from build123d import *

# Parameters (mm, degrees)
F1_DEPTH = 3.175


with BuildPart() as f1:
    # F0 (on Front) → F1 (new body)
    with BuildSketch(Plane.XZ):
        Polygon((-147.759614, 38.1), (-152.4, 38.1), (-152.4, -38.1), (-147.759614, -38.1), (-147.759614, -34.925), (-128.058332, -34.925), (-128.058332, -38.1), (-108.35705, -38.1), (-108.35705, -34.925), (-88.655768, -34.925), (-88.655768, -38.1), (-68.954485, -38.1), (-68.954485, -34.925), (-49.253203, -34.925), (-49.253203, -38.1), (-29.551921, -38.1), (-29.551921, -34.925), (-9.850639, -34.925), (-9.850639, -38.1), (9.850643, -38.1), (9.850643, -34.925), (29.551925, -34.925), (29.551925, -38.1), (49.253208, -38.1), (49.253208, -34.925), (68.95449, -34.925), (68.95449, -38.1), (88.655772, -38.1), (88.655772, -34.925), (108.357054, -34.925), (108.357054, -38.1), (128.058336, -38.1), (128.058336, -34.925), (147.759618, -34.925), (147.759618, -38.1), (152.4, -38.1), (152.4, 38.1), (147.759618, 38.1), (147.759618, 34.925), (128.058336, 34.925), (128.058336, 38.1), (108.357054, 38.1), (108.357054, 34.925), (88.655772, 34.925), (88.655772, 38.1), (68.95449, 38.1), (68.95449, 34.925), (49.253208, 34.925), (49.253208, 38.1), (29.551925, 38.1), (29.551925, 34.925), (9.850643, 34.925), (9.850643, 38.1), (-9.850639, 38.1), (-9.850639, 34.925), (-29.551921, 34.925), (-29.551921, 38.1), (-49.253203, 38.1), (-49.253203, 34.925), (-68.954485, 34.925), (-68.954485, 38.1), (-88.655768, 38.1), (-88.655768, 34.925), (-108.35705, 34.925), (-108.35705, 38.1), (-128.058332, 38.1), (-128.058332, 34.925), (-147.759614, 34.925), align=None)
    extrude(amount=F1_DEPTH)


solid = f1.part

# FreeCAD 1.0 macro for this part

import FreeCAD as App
import Part
import Sketcher

V = App.Vector
Q = App.Units.Quantity

doc = App.newDocument("Part")
params = doc.addObject("Spreadsheet::Sheet", "Params")
for row, (alias, value) in enumerate([
    ("sketch1_height", "3 in"),
    ("sketch1_height2", "0.125 in"),
    ("pad1_length", "0.125 in"),
], start=1):
    params.set(f"A{row}", alias)
    params.set(f"B{row}", "=" + value)
    params.setAlias(f"B{row}", alias)

body = doc.addObject("PartDesign::Body", "Body")

# Sketch on XZ plane
sketch1 = doc.addObject("Sketcher::SketchObject", "Sketch")
body.addObject(sketch1)
sketch1.AttachmentSupport = (doc.XZ_Plane, [""])
sketch1.MapMode = "FlatFace"
sketch1.addGeometry(Part.LineSegment(V(-147.8, 38.1, 0), V(-152.4, 38.1, 0)), False)
sketch1.addGeometry(Part.LineSegment(V(-152.4, 38.1, 0), V(-152.4, -38.1, 0)), False)
sketch1.addGeometry(Part.LineSegment(V(-152.4, -38.1, 0), V(-147.8, -38.1, 0)), False)
sketch1.addGeometry(Part.LineSegment(V(-147.8, -38.1, 0), V(-147.8, -34.9, 0)), False)
sketch1.addGeometry(Part.LineSegment(V(-147.8, -34.9, 0), V(-128.1, -34.9, 0)), False)
sketch1.addGeometry(Part.LineSegment(V(-128.1, -34.9, 0), V(-128.1, -38.1, 0)), False)
sketch1.addGeometry(Part.LineSegment(V(-128.1, -38.1, 0), V(-108.4, -38.1, 0)), False)
sketch1.addGeometry(Part.LineSegment(V(-108.4, -38.1, 0), V(-108.4, -34.9, 0)), False)
sketch1.addGeometry(Part.LineSegment(V(-108.4, -34.9, 0), V(-88.7, -34.9, 0)), False)
sketch1.addGeometry(Part.LineSegment(V(-88.7, -34.9, 0), V(-88.7, -38.1, 0)), False)
sketch1.addGeometry(Part.LineSegment(V(-88.7, -38.1, 0), V(-69, -38.1, 0)), False)
sketch1.addGeometry(Part.LineSegment(V(-69, -38.1, 0), V(-69, -34.9, 0)), False)
sketch1.addGeometry(Part.LineSegment(V(-69, -34.9, 0), V(-49.3, -34.9, 0)), False)
sketch1.addGeometry(Part.LineSegment(V(-49.3, -34.9, 0), V(-49.3, -38.1, 0)), False)
sketch1.addGeometry(Part.LineSegment(V(-49.3, -38.1, 0), V(-29.6, -38.1, 0)), False)
sketch1.addGeometry(Part.LineSegment(V(-29.6, -38.1, 0), V(-29.6, -34.9, 0)), False)
sketch1.addGeometry(Part.LineSegment(V(-29.6, -34.9, 0), V(-9.9, -34.9, 0)), False)
sketch1.addGeometry(Part.LineSegment(V(-9.9, -34.9, 0), V(-9.9, -38.1, 0)), False)
sketch1.addGeometry(Part.LineSegment(V(-9.9, -38.1, 0), V(9.9, -38.1, 0)), False)
sketch1.addGeometry(Part.LineSegment(V(9.9, -38.1, 0), V(9.9, -34.9, 0)), False)
sketch1.addGeometry(Part.LineSegment(V(9.9, -34.9, 0), V(29.6, -34.9, 0)), False)
sketch1.addGeometry(Part.LineSegment(V(29.6, -34.9, 0), V(29.6, -38.1, 0)), False)
sketch1.addGeometry(Part.LineSegment(V(29.6, -38.1, 0), V(49.3, -38.1, 0)), False)
sketch1.addGeometry(Part.LineSegment(V(49.3, -38.1, 0), V(49.3, -34.9, 0)), False)
sketch1.addGeometry(Part.LineSegment(V(49.3, -34.9, 0), V(69, -34.9, 0)), False)
sketch1.addGeometry(Part.LineSegment(V(69, -34.9, 0), V(69, -38.1, 0)), False)
sketch1.addGeometry(Part.LineSegment(V(69, -38.1, 0), V(88.7, -38.1, 0)), False)
sketch1.addGeometry(Part.LineSegment(V(88.7, -38.1, 0), V(88.7, -34.9, 0)), False)
sketch1.addGeometry(Part.LineSegment(V(88.7, -34.9, 0), V(108.4, -34.9, 0)), False)
sketch1.addGeometry(Part.LineSegment(V(108.4, -34.9, 0), V(108.4, -38.1, 0)), False)
sketch1.addGeometry(Part.LineSegment(V(108.4, -38.1, 0), V(128.1, -38.1, 0)), False)
sketch1.addGeometry(Part.LineSegment(V(128.1, -38.1, 0), V(128.1, -34.9, 0)), False)
sketch1.addGeometry(Part.LineSegment(V(128.1, -34.9, 0), V(147.8, -34.9, 0)), False)
sketch1.addGeometry(Part.LineSegment(V(147.8, -34.9, 0), V(147.8, -38.1, 0)), False)
sketch1.addGeometry(Part.LineSegment(V(147.8, -38.1, 0), V(152.4, -38.1, 0)), False)
sketch1.addGeometry(Part.LineSegment(V(152.4, -38.1, 0), V(152.4, 38.1, 0)), False)
sketch1.addGeometry(Part.LineSegment(V(152.4, 38.1, 0), V(147.8, 38.1, 0)), False)
sketch1.addGeometry(Part.LineSegment(V(147.8, 38.1, 0), V(147.8, 34.9, 0)), False)
sketch1.addGeometry(Part.LineSegment(V(147.8, 34.9, 0), V(128.1, 34.9, 0)), False)
sketch1.addGeometry(Part.LineSegment(V(128.1, 34.9, 0), V(128.1, 38.1, 0)), False)
sketch1.addGeometry(Part.LineSegment(V(128.1, 38.1, 0), V(108.4, 38.1, 0)), False)
sketch1.addGeometry(Part.LineSegment(V(108.4, 38.1, 0), V(108.4, 34.9, 0)), False)
sketch1.addGeometry(Part.LineSegment(V(108.4, 34.9, 0), V(88.7, 34.9, 0)), False)
sketch1.addGeometry(Part.LineSegment(V(88.7, 34.9, 0), V(88.7, 38.1, 0)), False)
sketch1.addGeometry(Part.LineSegment(V(88.7, 38.1, 0), V(69, 38.1, 0)), False)
sketch1.addGeometry(Part.LineSegment(V(69, 38.1, 0), V(69, 34.9, 0)), False)
sketch1.addGeometry(Part.LineSegment(V(69, 34.9, 0), V(49.3, 34.9, 0)), False)
sketch1.addGeometry(Part.LineSegment(V(49.3, 34.9, 0), V(49.3, 38.1, 0)), False)
sketch1.addGeometry(Part.LineSegment(V(49.3, 38.1, 0), V(29.6, 38.1, 0)), False)
sketch1.addGeometry(Part.LineSegment(V(29.6, 38.1, 0), V(29.6, 34.9, 0)), False)
sketch1.addGeometry(Part.LineSegment(V(29.6, 34.9, 0), V(9.9, 34.9, 0)), False)
sketch1.addGeometry(Part.LineSegment(V(9.9, 34.9, 0), V(9.9, 38.1, 0)), False)
sketch1.addGeometry(Part.LineSegment(V(9.9, 38.1, 0), V(-9.9, 38.1, 0)), False)
sketch1.addGeometry(Part.LineSegment(V(-9.9, 38.1, 0), V(-9.9, 34.9, 0)), False)
sketch1.addGeometry(Part.LineSegment(V(-9.9, 34.9, 0), V(-29.6, 34.9, 0)), False)
sketch1.addGeometry(Part.LineSegment(V(-29.6, 34.9, 0), V(-29.6, 38.1, 0)), False)
sketch1.addGeometry(Part.LineSegment(V(-29.6, 38.1, 0), V(-49.3, 38.1, 0)), False)
sketch1.addGeometry(Part.LineSegment(V(-49.3, 38.1, 0), V(-49.3, 34.9, 0)), False)
sketch1.addGeometry(Part.LineSegment(V(-49.3, 34.9, 0), V(-69, 34.9, 0)), False)
sketch1.addGeometry(Part.LineSegment(V(-69, 34.9, 0), V(-69, 38.1, 0)), False)
sketch1.addGeometry(Part.LineSegment(V(-69, 38.1, 0), V(-88.7, 38.1, 0)), False)
sketch1.addGeometry(Part.LineSegment(V(-88.7, 38.1, 0), V(-88.7, 34.9, 0)), False)
sketch1.addGeometry(Part.LineSegment(V(-88.7, 34.9, 0), V(-108.4, 34.9, 0)), False)
sketch1.addGeometry(Part.LineSegment(V(-108.4, 34.9, 0), V(-108.4, 38.1, 0)), False)
sketch1.addGeometry(Part.LineSegment(V(-108.4, 38.1, 0), V(-128.1, 38.1, 0)), False)
sketch1.addGeometry(Part.LineSegment(V(-128.1, 38.1, 0), V(-128.1, 34.9, 0)), False)
sketch1.addGeometry(Part.LineSegment(V(-128.1, 34.9, 0), V(-147.8, 34.9, 0)), False)
sketch1.addGeometry(Part.LineSegment(V(-147.8, 34.9, 0), V(-147.8, 38.1, 0)), False)
sketch1.addConstraint(Sketcher.Constraint("Coincident", 0, 2, 1, 1))
sketch1.addConstraint(Sketcher.Constraint("Coincident", 1, 2, 2, 1))
sketch1.addConstraint(Sketcher.Constraint("Coincident", 2, 2, 3, 1))
sketch1.addConstraint(Sketcher.Constraint("Coincident", 3, 2, 4, 1))
sketch1.addConstraint(Sketcher.Constraint("Coincident", 4, 2, 5, 1))
sketch1.addConstraint(Sketcher.Constraint("Coincident", 5, 2, 6, 1))
sketch1.addConstraint(Sketcher.Constraint("Coincident", 6, 2, 7, 1))
sketch1.addConstraint(Sketcher.Constraint("Coincident", 7, 2, 8, 1))
sketch1.addConstraint(Sketcher.Constraint("Coincident", 8, 2, 9, 1))
sketch1.addConstraint(Sketcher.Constraint("Coincident", 9, 2, 10, 1))
sketch1.addConstraint(Sketcher.Constraint("Coincident", 10, 2, 11, 1))
sketch1.addConstraint(Sketcher.Constraint("Coincident", 11, 2, 12, 1))
sketch1.addConstraint(Sketcher.Constraint("Coincident", 12, 2, 13, 1))
sketch1.addConstraint(Sketcher.Constraint("Coincident", 13, 2, 14, 1))
sketch1.addConstraint(Sketcher.Constraint("Coincident", 14, 2, 15, 1))
sketch1.addConstraint(Sketcher.Constraint("Coincident", 15, 2, 16, 1))
sketch1.addConstraint(Sketcher.Constraint("Coincident", 16, 2, 17, 1))
sketch1.addConstraint(Sketcher.Constraint("Coincident", 17, 2, 18, 1))
sketch1.addConstraint(Sketcher.Constraint("Coincident", 18, 2, 19, 1))
sketch1.addConstraint(Sketcher.Constraint("Coincident", 19, 2, 20, 1))
sketch1.addConstraint(Sketcher.Constraint("Coincident", 20, 2, 21, 1))
sketch1.addConstraint(Sketcher.Constraint("Coincident", 21, 2, 22, 1))
sketch1.addConstraint(Sketcher.Constraint("Coincident", 22, 2, 23, 1))
sketch1.addConstraint(Sketcher.Constraint("Coincident", 23, 2, 24, 1))
sketch1.addConstraint(Sketcher.Constraint("Coincident", 24, 2, 25, 1))
sketch1.addConstraint(Sketcher.Constraint("Coincident", 25, 2, 26, 1))
sketch1.addConstraint(Sketcher.Constraint("Coincident", 26, 2, 27, 1))
sketch1.addConstraint(Sketcher.Constraint("Coincident", 27, 2, 28, 1))
sketch1.addConstraint(Sketcher.Constraint("Coincident", 28, 2, 29, 1))
sketch1.addConstraint(Sketcher.Constraint("Coincident", 29, 2, 30, 1))
sketch1.addConstraint(Sketcher.Constraint("Coincident", 30, 2, 31, 1))
sketch1.addConstraint(Sketcher.Constraint("Coincident", 31, 2, 32, 1))
sketch1.addConstraint(Sketcher.Constraint("Coincident", 32, 2, 33, 1))
sketch1.addConstraint(Sketcher.Constraint("Coincident", 33, 2, 34, 1))
sketch1.addConstraint(Sketcher.Constraint("Coincident", 34, 2, 35, 1))
sketch1.addConstraint(Sketcher.Constraint("Coincident", 35, 2, 36, 1))
sketch1.addConstraint(Sketcher.Constraint("Coincident", 36, 2, 37, 1))
sketch1.addConstraint(Sketcher.Constraint("Coincident", 37, 2, 38, 1))
sketch1.addConstraint(Sketcher.Constraint("Coincident", 38, 2, 39, 1))
sketch1.addConstraint(Sketcher.Constraint("Coincident", 39, 2, 40, 1))
sketch1.addConstraint(Sketcher.Constraint("Coincident", 40, 2, 41, 1))
sketch1.addConstraint(Sketcher.Constraint("Coincident", 41, 2, 42, 1))
sketch1.addConstraint(Sketcher.Constraint("Coincident", 42, 2, 43, 1))
sketch1.addConstraint(Sketcher.Constraint("Coincident", 43, 2, 44, 1))
sketch1.addConstraint(Sketcher.Constraint("Coincident", 44, 2, 45, 1))
sketch1.addConstraint(Sketcher.Constraint("Coincident", 45, 2, 46, 1))
sketch1.addConstraint(Sketcher.Constraint("Coincident", 46, 2, 47, 1))
sketch1.addConstraint(Sketcher.Constraint("Coincident", 47, 2, 48, 1))
sketch1.addConstraint(Sketcher.Constraint("Coincident", 48, 2, 49, 1))
sketch1.addConstraint(Sketcher.Constraint("Coincident", 49, 2, 50, 1))
sketch1.addConstraint(Sketcher.Constraint("Coincident", 50, 2, 51, 1))
sketch1.addConstraint(Sketcher.Constraint("Coincident", 51, 2, 52, 1))
sketch1.addConstraint(Sketcher.Constraint("Coincident", 52, 2, 53, 1))
sketch1.addConstraint(Sketcher.Constraint("Coincident", 53, 2, 54, 1))
sketch1.addConstraint(Sketcher.Constraint("Coincident", 54, 2, 55, 1))
sketch1.addConstraint(Sketcher.Constraint("Coincident", 55, 2, 56, 1))
sketch1.addConstraint(Sketcher.Constraint("Coincident", 56, 2, 57, 1))
sketch1.addConstraint(Sketcher.Constraint("Coincident", 57, 2, 58, 1))
sketch1.addConstraint(Sketcher.Constraint("Coincident", 58, 2, 59, 1))
sketch1.addConstraint(Sketcher.Constraint("Coincident", 59, 2, 60, 1))
sketch1.addConstraint(Sketcher.Constraint("Coincident", 60, 2, 61, 1))
sketch1.addConstraint(Sketcher.Constraint("Coincident", 61, 2, 62, 1))
sketch1.addConstraint(Sketcher.Constraint("Coincident", 62, 2, 63, 1))
sketch1.addConstraint(Sketcher.Constraint("Coincident", 63, 2, 64, 1))
sketch1.addConstraint(Sketcher.Constraint("Coincident", 64, 2, 65, 1))
sketch1.addConstraint(Sketcher.Constraint("Coincident", 65, 2, 66, 1))
sketch1.addConstraint(Sketcher.Constraint("Coincident", 66, 2, 67, 1))
sketch1.addConstraint(Sketcher.Constraint("Coincident", 67, 2, 0, 1))
sketch1.addConstraint(Sketcher.Constraint("Horizontal", 0))
sketch1.addConstraint(Sketcher.Constraint("Vertical", 1))
sketch1.addConstraint(Sketcher.Constraint("Horizontal", 2))
sketch1.addConstraint(Sketcher.Constraint("Vertical", 3))
sketch1.addConstraint(Sketcher.Constraint("Horizontal", 4))
sketch1.addConstraint(Sketcher.Constraint("Vertical", 5))
sketch1.addConstraint(Sketcher.Constraint("Horizontal", 6))
sketch1.addConstraint(Sketcher.Constraint("Vertical", 7))
sketch1.addConstraint(Sketcher.Constraint("Horizontal", 8))
sketch1.addConstraint(Sketcher.Constraint("Vertical", 9))
sketch1.addConstraint(Sketcher.Constraint("Horizontal", 10))
sketch1.addConstraint(Sketcher.Constraint("Vertical", 11))
sketch1.addConstraint(Sketcher.Constraint("Horizontal", 12))
sketch1.addConstraint(Sketcher.Constraint("Vertical", 13))
sketch1.addConstraint(Sketcher.Constraint("Horizontal", 14))
sketch1.addConstraint(Sketcher.Constraint("Vertical", 15))
sketch1.addConstraint(Sketcher.Constraint("Horizontal", 16))
sketch1.addConstraint(Sketcher.Constraint("Vertical", 17))
sketch1.addConstraint(Sketcher.Constraint("Horizontal", 18))
sketch1.addConstraint(Sketcher.Constraint("Vertical", 19))
sketch1.addConstraint(Sketcher.Constraint("Horizontal", 20))
sketch1.addConstraint(Sketcher.Constraint("Vertical", 21))
sketch1.addConstraint(Sketcher.Constraint("Horizontal", 22))
sketch1.addConstraint(Sketcher.Constraint("Vertical", 23))
sketch1.addConstraint(Sketcher.Constraint("Horizontal", 24))
sketch1.addConstraint(Sketcher.Constraint("Vertical", 25))
sketch1.addConstraint(Sketcher.Constraint("Horizontal", 26))
sketch1.addConstraint(Sketcher.Constraint("Vertical", 27))
sketch1.addConstraint(Sketcher.Constraint("Horizontal", 28))
sketch1.addConstraint(Sketcher.Constraint("Vertical", 29))
sketch1.addConstraint(Sketcher.Constraint("Horizontal", 30))
sketch1.addConstraint(Sketcher.Constraint("Vertical", 31))
sketch1.addConstraint(Sketcher.Constraint("Horizontal", 32))
sketch1.addConstraint(Sketcher.Constraint("Vertical", 33))
sketch1.addConstraint(Sketcher.Constraint("Horizontal", 34))
sketch1.addConstraint(Sketcher.Constraint("Vertical", 35))
sketch1.addConstraint(Sketcher.Constraint("Horizontal", 36))
sketch1.addConstraint(Sketcher.Constraint("Vertical", 37))
sketch1.addConstraint(Sketcher.Constraint("Horizontal", 38))
sketch1.addConstraint(Sketcher.Constraint("Vertical", 39))
sketch1.addConstraint(Sketcher.Constraint("Horizontal", 40))
sketch1.addConstraint(Sketcher.Constraint("Vertical", 41))
sketch1.addConstraint(Sketcher.Constraint("Horizontal", 42))
sketch1.addConstraint(Sketcher.Constraint("Vertical", 43))
sketch1.addConstraint(Sketcher.Constraint("Horizontal", 44))
sketch1.addConstraint(Sketcher.Constraint("Vertical", 45))
sketch1.addConstraint(Sketcher.Constraint("Horizontal", 46))
sketch1.addConstraint(Sketcher.Constraint("Vertical", 47))
sketch1.addConstraint(Sketcher.Constraint("Horizontal", 48))
sketch1.addConstraint(Sketcher.Constraint("Vertical", 49))
sketch1.addConstraint(Sketcher.Constraint("Horizontal", 50))
sketch1.addConstraint(Sketcher.Constraint("Vertical", 51))
sketch1.addConstraint(Sketcher.Constraint("Horizontal", 52))
sketch1.addConstraint(Sketcher.Constraint("Vertical", 53))
sketch1.addConstraint(Sketcher.Constraint("Horizontal", 54))
sketch1.addConstraint(Sketcher.Constraint("Vertical", 55))
sketch1.addConstraint(Sketcher.Constraint("Horizontal", 56))
sketch1.addConstraint(Sketcher.Constraint("Vertical", 57))
sketch1.addConstraint(Sketcher.Constraint("Horizontal", 58))
sketch1.addConstraint(Sketcher.Constraint("Vertical", 59))
sketch1.addConstraint(Sketcher.Constraint("Horizontal", 60))
sketch1.addConstraint(Sketcher.Constraint("Vertical", 61))
sketch1.addConstraint(Sketcher.Constraint("Horizontal", 62))
sketch1.addConstraint(Sketcher.Constraint("Vertical", 63))
sketch1.addConstraint(Sketcher.Constraint("Horizontal", 64))
sketch1.addConstraint(Sketcher.Constraint("Vertical", 65))
sketch1.addConstraint(Sketcher.Constraint("Horizontal", 66))
sketch1.addConstraint(Sketcher.Constraint("Vertical", 67))
sketch1.addConstraint(Sketcher.Constraint("Symmetric", 0, 2, 34, 2, -1, 1))
sketch1.addConstraint(Sketcher.Constraint("Symmetric", 2, 2, 36, 2, -1, 1))
sketch1.addConstraint(Sketcher.Constraint("Symmetric", 4, 2, 38, 2, -1, 1))
sketch1.addConstraint(Sketcher.Constraint("Symmetric", 6, 2, 40, 2, -1, 1))
sketch1.addConstraint(Sketcher.Constraint("Symmetric", 8, 2, 42, 2, -1, 1))
sketch1.addConstraint(Sketcher.Constraint("Symmetric", 10, 2, 44, 2, -1, 1))
sketch1.addConstraint(Sketcher.Constraint("Symmetric", 12, 2, 46, 2, -1, 1))
sketch1.addConstraint(Sketcher.Constraint("Symmetric", 14, 2, 48, 2, -1, 1))
sketch1.addConstraint(Sketcher.Constraint("Symmetric", 16, 2, 50, 2, -1, 1))
sketch1.addConstraint(Sketcher.Constraint("Symmetric", 18, 2, 52, 2, -1, 1))
sketch1.addConstraint(Sketcher.Constraint("Symmetric", 20, 2, 54, 2, -1, 1))
sketch1.addConstraint(Sketcher.Constraint("Symmetric", 22, 2, 56, 2, -1, 1))
sketch1.addConstraint(Sketcher.Constraint("Symmetric", 24, 2, 58, 2, -1, 1))
sketch1.addConstraint(Sketcher.Constraint("Symmetric", 26, 2, 60, 2, -1, 1))
sketch1.addConstraint(Sketcher.Constraint("Symmetric", 28, 2, 62, 2, -1, 1))
sketch1.addConstraint(Sketcher.Constraint("Symmetric", 30, 2, 64, 2, -1, 1))
sketch1.addConstraint(Sketcher.Constraint("Symmetric", 32, 2, 66, 2, -1, 1))
sketch1.addConstraint(Sketcher.Constraint("Symmetric", 16, 2, 19, 2, -2))
sketch1.addConstraint(Sketcher.Constraint("Symmetric", 14, 2, 21, 2, -2))
sketch1.addConstraint(Sketcher.Constraint("Symmetric", 12, 2, 23, 2, -2))
sketch1.addConstraint(Sketcher.Constraint("Symmetric", 10, 2, 25, 2, -2))
sketch1.addConstraint(Sketcher.Constraint("Symmetric", 8, 2, 27, 2, -2))
sketch1.addConstraint(Sketcher.Constraint("Symmetric", 6, 2, 29, 2, -2))
sketch1.addConstraint(Sketcher.Constraint("Symmetric", 4, 2, 31, 2, -2))
sketch1.addConstraint(Sketcher.Constraint("Symmetric", 2, 2, 33, 2, -2))
sketch1.addConstraint(Sketcher.Constraint("Horizontal", 2, 2, 5, 2))
sketch1.addConstraint(Sketcher.Constraint("Horizontal", 4, 2, 7, 2))
sketch1.addConstraint(Sketcher.Constraint("Horizontal", 6, 2, 9, 2))
sketch1.addConstraint(Sketcher.Constraint("Horizontal", 8, 2, 11, 2))
sketch1.addConstraint(Sketcher.Constraint("Horizontal", 10, 2, 13, 2))
sketch1.addConstraint(Sketcher.Constraint("Horizontal", 12, 2, 15, 2))
sketch1.addConstraint(Sketcher.Constraint("Horizontal", 14, 2, 17, 2))
sketch1.addConstraint(Sketcher.Constraint("Equal", 4, 6))
sketch1.addConstraint(Sketcher.Constraint("Equal", 6, 8))
sketch1.addConstraint(Sketcher.Constraint("Equal", 8, 10))
sketch1.addConstraint(Sketcher.Constraint("Equal", 10, 12))
sketch1.addConstraint(Sketcher.Constraint("Equal", 12, 14))
sketch1.addConstraint(Sketcher.Constraint("Equal", 14, 16))
sketch1.addConstraint(Sketcher.Constraint("Equal", 16, 18))
sketch1.addConstraint(Sketcher.Constraint("DistanceY", 1, 2, 1, 1, Q("3 in")))
sketch1.addConstraint(Sketcher.Constraint("DistanceX", 0, 2, -1, 1, Q("6 in")))
sketch1.addConstraint(Sketcher.Constraint("DistanceY", 3, 1, 3, 2, Q("0.125 in")))
sketch1.addConstraint(Sketcher.Constraint("DistanceX", 4, 1, 4, 2, Q("19.701282 mm")))
sketch1.setExpression("Constraints[175]", "Params.sketch1_height")
sketch1.setExpression("Constraints[177]", "Params.sketch1_height2")
pad1 = doc.addObject("PartDesign::Pad", "Pad")
body.addObject(pad1)
pad1.Profile = sketch1
pad1.setExpression("Length", "Params.pad1_length")

doc.recompute()
